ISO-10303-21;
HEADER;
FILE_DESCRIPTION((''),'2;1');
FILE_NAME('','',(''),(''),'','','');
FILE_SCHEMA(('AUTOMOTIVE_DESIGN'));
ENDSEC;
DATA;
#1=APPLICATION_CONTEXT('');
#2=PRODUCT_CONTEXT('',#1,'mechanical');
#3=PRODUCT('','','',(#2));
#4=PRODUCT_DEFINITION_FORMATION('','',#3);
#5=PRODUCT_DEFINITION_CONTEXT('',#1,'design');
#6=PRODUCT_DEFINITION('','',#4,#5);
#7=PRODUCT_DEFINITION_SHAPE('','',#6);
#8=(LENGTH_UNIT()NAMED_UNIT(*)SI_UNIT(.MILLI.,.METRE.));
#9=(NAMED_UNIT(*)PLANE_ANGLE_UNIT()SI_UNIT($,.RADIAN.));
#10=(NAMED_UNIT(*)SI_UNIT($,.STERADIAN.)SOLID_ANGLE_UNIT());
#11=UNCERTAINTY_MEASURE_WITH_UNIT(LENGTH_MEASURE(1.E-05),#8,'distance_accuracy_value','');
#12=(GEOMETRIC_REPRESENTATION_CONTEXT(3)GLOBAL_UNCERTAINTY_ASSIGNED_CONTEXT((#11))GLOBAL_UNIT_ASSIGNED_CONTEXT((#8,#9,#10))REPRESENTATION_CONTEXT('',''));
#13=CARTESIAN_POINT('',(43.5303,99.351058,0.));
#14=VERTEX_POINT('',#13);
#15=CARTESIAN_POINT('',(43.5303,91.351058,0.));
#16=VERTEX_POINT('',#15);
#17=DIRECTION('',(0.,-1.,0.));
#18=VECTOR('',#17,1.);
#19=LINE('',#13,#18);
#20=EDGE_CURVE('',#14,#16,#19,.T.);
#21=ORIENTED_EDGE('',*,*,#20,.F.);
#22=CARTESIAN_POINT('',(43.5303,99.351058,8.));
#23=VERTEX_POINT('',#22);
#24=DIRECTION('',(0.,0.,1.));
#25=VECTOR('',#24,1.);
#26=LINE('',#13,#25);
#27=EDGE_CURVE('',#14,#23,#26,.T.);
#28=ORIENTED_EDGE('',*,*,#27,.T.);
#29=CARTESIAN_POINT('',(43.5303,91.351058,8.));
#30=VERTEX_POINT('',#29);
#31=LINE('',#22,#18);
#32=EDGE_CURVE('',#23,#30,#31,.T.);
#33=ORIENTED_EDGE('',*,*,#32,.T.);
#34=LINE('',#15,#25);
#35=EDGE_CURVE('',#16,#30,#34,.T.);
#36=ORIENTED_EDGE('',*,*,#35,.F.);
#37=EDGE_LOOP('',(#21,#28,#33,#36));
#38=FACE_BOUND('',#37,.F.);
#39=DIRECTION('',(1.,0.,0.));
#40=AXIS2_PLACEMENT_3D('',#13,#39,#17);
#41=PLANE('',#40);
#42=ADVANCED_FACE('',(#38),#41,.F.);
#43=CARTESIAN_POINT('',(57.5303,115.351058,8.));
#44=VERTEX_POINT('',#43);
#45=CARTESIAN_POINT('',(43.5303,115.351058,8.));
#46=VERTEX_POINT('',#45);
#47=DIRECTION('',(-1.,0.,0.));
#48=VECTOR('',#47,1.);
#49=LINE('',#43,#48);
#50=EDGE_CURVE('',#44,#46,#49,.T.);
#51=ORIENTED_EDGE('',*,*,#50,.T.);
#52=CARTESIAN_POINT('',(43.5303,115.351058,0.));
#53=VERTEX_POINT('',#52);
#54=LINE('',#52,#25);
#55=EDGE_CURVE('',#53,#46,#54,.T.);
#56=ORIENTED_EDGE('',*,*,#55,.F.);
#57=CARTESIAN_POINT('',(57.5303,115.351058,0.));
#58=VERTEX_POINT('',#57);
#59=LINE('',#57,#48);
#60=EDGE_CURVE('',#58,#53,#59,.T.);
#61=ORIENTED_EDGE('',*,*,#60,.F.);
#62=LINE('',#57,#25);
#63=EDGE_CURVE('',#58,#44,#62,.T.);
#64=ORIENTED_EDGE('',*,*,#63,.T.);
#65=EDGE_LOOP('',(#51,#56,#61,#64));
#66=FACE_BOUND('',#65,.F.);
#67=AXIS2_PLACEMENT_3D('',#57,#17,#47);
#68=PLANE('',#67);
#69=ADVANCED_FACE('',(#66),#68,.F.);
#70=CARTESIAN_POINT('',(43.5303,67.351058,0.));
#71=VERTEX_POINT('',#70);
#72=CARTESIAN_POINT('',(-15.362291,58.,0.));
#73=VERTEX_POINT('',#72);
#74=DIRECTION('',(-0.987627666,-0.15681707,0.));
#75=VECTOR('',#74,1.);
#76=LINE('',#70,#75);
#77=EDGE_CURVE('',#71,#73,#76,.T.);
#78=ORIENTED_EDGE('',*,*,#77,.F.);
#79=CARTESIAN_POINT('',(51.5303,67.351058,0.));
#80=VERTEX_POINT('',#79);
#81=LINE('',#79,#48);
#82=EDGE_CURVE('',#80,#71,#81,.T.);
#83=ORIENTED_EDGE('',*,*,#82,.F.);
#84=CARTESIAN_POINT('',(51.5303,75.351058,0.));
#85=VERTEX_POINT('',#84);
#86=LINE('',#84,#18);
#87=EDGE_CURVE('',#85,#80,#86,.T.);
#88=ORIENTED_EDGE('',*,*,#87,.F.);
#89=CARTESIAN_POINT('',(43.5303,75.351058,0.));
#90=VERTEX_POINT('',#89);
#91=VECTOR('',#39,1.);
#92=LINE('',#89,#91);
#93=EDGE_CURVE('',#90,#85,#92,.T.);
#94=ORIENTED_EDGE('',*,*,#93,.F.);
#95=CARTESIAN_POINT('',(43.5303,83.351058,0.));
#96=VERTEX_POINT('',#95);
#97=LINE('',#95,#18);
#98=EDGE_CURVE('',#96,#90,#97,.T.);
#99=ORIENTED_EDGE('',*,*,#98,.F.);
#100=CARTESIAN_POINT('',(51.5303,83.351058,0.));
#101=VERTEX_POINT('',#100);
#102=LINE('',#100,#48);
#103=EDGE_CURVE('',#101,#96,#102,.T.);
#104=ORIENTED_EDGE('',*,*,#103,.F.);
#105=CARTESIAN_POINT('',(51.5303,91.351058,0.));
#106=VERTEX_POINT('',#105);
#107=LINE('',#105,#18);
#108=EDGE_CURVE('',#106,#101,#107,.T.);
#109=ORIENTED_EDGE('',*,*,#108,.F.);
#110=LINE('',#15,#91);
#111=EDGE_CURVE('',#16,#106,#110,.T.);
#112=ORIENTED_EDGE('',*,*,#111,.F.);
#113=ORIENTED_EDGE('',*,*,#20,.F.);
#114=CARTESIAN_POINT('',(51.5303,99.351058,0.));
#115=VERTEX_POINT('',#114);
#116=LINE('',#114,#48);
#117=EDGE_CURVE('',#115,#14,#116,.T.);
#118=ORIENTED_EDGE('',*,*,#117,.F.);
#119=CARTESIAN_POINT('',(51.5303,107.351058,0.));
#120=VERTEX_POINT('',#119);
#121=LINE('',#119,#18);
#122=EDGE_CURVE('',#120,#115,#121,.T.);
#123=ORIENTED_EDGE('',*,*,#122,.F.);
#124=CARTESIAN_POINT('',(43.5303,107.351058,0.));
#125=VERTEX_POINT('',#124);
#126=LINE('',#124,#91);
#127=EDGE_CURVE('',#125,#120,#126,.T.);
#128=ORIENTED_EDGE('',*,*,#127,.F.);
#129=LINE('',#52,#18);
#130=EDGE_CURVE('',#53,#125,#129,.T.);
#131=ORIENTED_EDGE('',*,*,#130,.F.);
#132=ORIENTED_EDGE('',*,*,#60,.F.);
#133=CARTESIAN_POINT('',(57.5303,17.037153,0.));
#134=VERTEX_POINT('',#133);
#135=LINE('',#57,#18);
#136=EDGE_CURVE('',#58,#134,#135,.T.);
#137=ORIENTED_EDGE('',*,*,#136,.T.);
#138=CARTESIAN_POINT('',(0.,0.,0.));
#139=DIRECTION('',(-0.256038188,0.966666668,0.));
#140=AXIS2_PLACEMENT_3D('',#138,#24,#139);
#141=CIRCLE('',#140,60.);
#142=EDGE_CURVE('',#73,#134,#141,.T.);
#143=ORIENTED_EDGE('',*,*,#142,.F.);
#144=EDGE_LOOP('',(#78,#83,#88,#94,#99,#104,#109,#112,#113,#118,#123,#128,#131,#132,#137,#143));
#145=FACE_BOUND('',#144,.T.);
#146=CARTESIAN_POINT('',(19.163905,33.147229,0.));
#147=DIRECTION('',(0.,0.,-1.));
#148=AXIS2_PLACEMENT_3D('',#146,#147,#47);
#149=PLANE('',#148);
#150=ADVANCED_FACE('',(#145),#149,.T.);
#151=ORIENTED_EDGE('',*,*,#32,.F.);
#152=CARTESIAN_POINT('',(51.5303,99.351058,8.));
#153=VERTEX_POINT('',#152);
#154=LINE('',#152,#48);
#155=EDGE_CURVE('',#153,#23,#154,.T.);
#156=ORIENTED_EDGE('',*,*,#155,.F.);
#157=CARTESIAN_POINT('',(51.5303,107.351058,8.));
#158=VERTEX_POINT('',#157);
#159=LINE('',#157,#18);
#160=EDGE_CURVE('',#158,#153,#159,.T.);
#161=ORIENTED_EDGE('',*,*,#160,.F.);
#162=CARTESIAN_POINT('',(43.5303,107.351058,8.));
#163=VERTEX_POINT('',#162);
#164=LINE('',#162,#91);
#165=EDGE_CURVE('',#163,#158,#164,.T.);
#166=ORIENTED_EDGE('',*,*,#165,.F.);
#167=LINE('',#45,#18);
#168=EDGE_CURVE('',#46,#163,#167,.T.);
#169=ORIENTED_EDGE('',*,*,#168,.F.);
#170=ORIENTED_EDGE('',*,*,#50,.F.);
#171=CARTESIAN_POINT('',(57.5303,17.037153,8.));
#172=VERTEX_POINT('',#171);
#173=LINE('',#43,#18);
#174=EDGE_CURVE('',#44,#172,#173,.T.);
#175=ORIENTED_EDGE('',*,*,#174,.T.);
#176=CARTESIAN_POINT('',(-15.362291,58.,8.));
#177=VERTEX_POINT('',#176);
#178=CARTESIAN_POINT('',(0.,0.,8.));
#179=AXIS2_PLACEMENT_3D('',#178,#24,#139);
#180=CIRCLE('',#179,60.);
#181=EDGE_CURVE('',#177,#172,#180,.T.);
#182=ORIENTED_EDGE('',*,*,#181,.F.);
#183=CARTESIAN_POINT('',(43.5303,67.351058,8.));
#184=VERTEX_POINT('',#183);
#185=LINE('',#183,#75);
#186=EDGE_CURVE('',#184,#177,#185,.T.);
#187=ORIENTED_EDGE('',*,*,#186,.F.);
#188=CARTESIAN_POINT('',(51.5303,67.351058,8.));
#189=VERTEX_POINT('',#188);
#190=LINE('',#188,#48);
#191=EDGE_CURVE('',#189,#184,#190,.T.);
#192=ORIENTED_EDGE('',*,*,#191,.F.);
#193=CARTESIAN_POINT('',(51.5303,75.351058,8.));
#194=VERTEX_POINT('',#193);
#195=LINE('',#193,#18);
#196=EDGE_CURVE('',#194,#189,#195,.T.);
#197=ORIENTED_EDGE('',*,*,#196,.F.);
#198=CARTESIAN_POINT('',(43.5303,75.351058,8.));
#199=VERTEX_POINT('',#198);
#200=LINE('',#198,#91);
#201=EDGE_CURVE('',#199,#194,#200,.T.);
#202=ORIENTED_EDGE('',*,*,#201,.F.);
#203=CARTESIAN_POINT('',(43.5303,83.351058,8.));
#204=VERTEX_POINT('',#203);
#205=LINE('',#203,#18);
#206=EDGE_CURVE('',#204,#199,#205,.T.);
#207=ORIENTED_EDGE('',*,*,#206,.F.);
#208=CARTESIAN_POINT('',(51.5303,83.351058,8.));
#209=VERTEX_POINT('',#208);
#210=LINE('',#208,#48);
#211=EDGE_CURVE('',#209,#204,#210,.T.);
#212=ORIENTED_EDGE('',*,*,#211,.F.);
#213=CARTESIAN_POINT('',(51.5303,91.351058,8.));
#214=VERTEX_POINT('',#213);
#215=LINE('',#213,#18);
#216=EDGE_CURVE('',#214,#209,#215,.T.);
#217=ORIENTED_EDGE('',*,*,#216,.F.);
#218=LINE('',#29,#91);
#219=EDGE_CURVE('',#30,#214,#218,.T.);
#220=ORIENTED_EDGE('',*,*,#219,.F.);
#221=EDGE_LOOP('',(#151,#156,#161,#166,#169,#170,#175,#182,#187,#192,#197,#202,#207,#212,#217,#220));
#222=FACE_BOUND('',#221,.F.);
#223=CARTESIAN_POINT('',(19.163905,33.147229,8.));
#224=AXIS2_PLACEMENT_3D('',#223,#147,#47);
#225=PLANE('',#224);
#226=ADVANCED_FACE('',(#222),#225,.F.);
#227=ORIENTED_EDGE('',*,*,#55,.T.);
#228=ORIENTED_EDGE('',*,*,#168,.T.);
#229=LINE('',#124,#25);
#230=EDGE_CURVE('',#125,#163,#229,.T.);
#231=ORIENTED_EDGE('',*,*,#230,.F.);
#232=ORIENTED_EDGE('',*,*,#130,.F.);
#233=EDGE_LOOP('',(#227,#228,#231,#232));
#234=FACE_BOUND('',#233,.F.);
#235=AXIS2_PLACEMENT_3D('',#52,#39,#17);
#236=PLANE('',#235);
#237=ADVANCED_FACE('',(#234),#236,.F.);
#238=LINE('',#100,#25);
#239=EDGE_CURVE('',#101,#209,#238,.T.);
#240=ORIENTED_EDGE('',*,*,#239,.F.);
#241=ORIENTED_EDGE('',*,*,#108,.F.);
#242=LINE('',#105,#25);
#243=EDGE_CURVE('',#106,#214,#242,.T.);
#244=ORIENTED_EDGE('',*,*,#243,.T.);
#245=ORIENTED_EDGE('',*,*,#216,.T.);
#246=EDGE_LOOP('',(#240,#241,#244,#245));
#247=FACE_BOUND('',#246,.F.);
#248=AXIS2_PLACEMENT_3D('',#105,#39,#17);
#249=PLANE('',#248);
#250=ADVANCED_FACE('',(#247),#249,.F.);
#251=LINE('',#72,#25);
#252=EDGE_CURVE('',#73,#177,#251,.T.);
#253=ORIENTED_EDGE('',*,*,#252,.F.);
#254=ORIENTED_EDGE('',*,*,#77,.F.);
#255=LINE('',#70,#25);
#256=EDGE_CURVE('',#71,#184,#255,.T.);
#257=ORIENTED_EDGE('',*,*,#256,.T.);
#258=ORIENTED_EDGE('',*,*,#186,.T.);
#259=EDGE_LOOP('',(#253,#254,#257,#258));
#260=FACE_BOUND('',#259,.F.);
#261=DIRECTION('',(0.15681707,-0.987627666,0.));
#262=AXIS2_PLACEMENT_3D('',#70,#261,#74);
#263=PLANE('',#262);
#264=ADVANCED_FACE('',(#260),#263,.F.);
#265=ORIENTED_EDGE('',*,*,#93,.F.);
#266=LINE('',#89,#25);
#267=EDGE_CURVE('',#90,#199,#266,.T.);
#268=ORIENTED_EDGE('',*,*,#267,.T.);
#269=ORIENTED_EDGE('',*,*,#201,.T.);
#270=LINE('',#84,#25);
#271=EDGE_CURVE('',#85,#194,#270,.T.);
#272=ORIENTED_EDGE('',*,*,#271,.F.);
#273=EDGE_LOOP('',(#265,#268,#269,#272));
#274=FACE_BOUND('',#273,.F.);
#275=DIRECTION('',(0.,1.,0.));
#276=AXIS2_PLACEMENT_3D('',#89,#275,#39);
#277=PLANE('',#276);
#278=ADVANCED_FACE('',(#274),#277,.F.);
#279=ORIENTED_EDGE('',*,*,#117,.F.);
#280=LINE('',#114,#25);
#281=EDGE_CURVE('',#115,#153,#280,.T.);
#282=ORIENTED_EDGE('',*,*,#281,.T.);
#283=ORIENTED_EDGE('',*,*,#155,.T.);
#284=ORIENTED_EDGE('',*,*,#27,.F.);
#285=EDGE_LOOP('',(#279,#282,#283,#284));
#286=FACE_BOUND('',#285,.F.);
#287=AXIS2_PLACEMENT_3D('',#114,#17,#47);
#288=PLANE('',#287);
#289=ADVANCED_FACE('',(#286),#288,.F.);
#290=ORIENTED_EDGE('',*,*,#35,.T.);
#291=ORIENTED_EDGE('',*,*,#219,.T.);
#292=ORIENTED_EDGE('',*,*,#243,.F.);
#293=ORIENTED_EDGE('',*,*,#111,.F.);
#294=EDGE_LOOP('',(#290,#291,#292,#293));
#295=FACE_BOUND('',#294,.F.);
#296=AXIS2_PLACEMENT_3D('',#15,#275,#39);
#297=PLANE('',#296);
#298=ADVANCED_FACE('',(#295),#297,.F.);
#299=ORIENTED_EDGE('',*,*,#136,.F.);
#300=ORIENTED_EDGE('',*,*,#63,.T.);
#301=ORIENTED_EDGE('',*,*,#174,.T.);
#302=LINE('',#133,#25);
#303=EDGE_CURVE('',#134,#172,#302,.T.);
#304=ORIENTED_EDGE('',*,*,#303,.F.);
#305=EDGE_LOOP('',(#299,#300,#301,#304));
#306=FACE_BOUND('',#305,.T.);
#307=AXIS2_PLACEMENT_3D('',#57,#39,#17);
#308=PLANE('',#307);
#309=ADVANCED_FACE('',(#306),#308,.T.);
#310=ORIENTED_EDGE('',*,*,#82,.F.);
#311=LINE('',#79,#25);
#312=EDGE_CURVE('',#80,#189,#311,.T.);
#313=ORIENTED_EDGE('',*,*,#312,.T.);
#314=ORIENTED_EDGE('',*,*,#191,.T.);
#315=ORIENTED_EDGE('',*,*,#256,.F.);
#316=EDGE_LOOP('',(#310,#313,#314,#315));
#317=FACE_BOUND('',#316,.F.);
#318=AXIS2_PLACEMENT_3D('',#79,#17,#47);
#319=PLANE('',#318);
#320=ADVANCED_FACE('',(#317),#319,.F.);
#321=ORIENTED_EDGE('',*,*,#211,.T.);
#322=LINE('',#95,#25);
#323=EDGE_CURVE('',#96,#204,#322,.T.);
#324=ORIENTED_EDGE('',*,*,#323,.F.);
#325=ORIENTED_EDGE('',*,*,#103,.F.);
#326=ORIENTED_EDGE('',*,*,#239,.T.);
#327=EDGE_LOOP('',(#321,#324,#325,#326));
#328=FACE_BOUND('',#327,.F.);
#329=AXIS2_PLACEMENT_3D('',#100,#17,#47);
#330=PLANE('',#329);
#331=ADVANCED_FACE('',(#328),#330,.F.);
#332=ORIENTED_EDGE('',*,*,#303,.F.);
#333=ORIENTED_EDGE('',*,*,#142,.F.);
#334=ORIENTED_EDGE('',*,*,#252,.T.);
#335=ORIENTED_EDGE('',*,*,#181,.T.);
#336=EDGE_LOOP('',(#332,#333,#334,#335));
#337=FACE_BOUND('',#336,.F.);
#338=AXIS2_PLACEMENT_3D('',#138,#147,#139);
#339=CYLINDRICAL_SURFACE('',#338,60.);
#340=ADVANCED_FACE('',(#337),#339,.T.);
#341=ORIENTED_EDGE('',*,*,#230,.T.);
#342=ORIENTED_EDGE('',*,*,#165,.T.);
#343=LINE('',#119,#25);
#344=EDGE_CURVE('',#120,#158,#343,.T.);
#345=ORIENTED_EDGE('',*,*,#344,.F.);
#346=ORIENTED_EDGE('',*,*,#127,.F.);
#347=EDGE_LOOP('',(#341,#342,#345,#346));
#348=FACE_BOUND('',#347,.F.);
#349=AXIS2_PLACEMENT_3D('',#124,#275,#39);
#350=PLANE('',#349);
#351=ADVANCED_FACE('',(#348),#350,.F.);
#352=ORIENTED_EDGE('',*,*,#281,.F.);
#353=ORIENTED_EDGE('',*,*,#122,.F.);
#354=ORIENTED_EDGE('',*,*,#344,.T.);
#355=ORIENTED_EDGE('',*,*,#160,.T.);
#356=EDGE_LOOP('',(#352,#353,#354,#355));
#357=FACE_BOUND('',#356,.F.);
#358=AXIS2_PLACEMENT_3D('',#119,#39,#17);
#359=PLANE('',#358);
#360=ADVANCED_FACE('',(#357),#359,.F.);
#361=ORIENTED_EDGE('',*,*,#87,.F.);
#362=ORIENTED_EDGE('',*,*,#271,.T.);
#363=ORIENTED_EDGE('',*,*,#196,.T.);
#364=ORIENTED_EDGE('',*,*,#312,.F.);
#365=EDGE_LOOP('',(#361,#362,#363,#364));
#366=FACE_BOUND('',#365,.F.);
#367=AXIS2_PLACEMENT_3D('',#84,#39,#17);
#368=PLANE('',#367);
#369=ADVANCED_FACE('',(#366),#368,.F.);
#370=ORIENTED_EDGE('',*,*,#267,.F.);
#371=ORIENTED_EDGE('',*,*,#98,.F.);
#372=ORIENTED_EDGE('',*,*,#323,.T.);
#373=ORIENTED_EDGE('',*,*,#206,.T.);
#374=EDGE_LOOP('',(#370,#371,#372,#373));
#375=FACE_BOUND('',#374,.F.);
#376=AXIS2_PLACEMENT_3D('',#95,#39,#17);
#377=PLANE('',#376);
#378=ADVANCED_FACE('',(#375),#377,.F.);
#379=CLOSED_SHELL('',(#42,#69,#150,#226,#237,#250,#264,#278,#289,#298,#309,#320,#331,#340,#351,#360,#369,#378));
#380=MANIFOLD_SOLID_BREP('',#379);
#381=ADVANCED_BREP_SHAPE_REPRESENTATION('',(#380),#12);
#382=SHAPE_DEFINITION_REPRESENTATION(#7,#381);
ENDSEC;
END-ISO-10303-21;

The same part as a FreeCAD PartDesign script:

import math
import FreeCAD as App
import Part
import Sketcher

doc = App.newDocument("Part")
params = doc.addObject("Spreadsheet::Sheet", "Params")
for row, (alias, value) in enumerate([
    ("sketch1_radius", "60 mm"),
    ("sketch1_width", "14 mm"),
    ("sketch1_width2", "8 mm"),
    ("pad1_length", "8 mm"),
], start=1):
    params.set(f"A{row}", alias)
    params.set(f"B{row}", "=" + value)
    params.setAlias(f"B{row}", alias)

body = doc.addObject("PartDesign::Body", "Body")

sketch1 = doc.addObject("Sketcher::SketchObject", "Sketch")
body.addObject(sketch1)
sketch1.AttachmentSupport = (doc.XY_Plane, [""])
sketch1.MapMode = "FlatFace"
sketch1.addGeometry([
    Part.LineSegment(App.Vector(57.5303, 115.351058, 0), App.Vector(43.5303, 115.351058, 0)),
    Part.LineSegment(App.Vector(43.5303, 115.351058, 0), App.Vector(43.5303, 107.351058, 0)),
    Part.LineSegment(App.Vector(43.5303, 107.351058, 0), App.Vector(51.5303, 107.351058, 0)),
    Part.LineSegment(App.Vector(51.5303, 107.351058, 0), App.Vector(51.5303, 99.351058, 0)),
    Part.LineSegment(App.Vector(51.5303, 99.351058, 0), App.Vector(43.5303, 99.351058, 0)),
    Part.LineSegment(App.Vector(43.5303, 99.351058, 0), App.Vector(43.5303, 91.351058, 0)),
    Part.LineSegment(App.Vector(43.5303, 91.351058, 0), App.Vector(51.5303, 91.351058, 0)),
    Part.LineSegment(App.Vector(51.5303, 91.351058, 0), App.Vector(51.5303, 83.351058, 0)),
    Part.LineSegment(App.Vector(51.5303, 83.351058, 0), App.Vector(43.5303, 83.351058, 0)),
    Part.LineSegment(App.Vector(43.5303, 83.351058, 0), App.Vector(43.5303, 75.351058, 0)),
    Part.LineSegment(App.Vector(43.5303, 75.351058, 0), App.Vector(51.5303, 75.351058, 0)),
    Part.LineSegment(App.Vector(51.5303, 75.351058, 0), App.Vector(51.5303, 67.351058, 0)),
    Part.LineSegment(App.Vector(51.5303, 67.351058, 0), App.Vector(43.5303, 67.351058, 0)),
    Part.LineSegment(App.Vector(43.5303, 67.351058, 0), App.Vector(-15.362291, 58, 0)),
    Part.ArcOfCircle(Part.Circle(App.Vector(0, 0, 0), App.Vector(0, 0, 1), 60), math.radians(104.835111), math.radians(376.496248)),
    Part.LineSegment(App.Vector(57.5303, 17.037153, 0), App.Vector(57.5303, 115.351058, 0)),
], False)
sketch1.addConstraint([
    Sketcher.Constraint("Coincident", 0, 2, 1, 1),
    Sketcher.Constraint("Coincident", 1, 2, 2, 1),
    Sketcher.Constraint("Coincident", 2, 2, 3, 1),
    Sketcher.Constraint("Coincident", 3, 2, 4, 1),
    Sketcher.Constraint("Coincident", 4, 2, 5, 1),
    Sketcher.Constraint("Coincident", 5, 2, 6, 1),
    Sketcher.Constraint("Coincident", 6, 2, 7, 1),
    Sketcher.Constraint("Coincident", 7, 2, 8, 1),
    Sketcher.Constraint("Coincident", 8, 2, 9, 1),
    Sketcher.Constraint("Coincident", 9, 2, 10, 1),
    Sketcher.Constraint("Coincident", 10, 2, 11, 1),
    Sketcher.Constraint("Coincident", 11, 2, 12, 1),
    Sketcher.Constraint("Coincident", 12, 2, 13, 1),
    Sketcher.Constraint("Coincident", 13, 2, 14, 1),
    Sketcher.Constraint("Coincident", 14, 2, 15, 1),
    Sketcher.Constraint("Coincident", 15, 2, 0, 1),
    Sketcher.Constraint("Horizontal", 0),
    Sketcher.Constraint("Vertical", 1),
    Sketcher.Constraint("Horizontal", 2),
    Sketcher.Constraint("Vertical", 3),
    Sketcher.Constraint("Horizontal", 4),
    Sketcher.Constraint("Vertical", 5),
    Sketcher.Constraint("Horizontal", 6),
    Sketcher.Constraint("Vertical", 7),
    Sketcher.Constraint("Horizontal", 8),
    Sketcher.Constraint("Vertical", 9),
    Sketcher.Constraint("Horizontal", 10),
    Sketcher.Constraint("Vertical", 11),
    Sketcher.Constraint("Horizontal", 12),
    Sketcher.Constraint("Vertical", 15),
    Sketcher.Constraint("Coincident", 14, 3, -1, 1),
    Sketcher.Constraint("Vertical", 1, 2, 4, 2),
    Sketcher.Constraint("Vertical", 3, 2, 6, 2),
    Sketcher.Constraint("Vertical", 5, 2, 8, 2),
    Sketcher.Constraint("Vertical", 7, 2, 10, 2),
    Sketcher.Constraint("Vertical", 9, 2, 12, 2),
    Sketcher.Constraint("Equal", 12, 1),
    Sketcher.Constraint("Equal", 1, 3),
    Sketcher.Constraint("Equal", 3, 5),
    Sketcher.Constraint("Equal", 5, 7),
    Sketcher.Constraint("Equal", 7, 9),
    Sketcher.Constraint("Equal", 9, 11),
    Sketcher.Constraint("Radius", 14, 60.0),
    Sketcher.Constraint("DistanceX", 0, 2, 0, 1, 14.0),
    Sketcher.Constraint("DistanceX", 2, 1, 2, 2, 8.0),
    Sketcher.Constraint("DistanceY", -1, 1, 13, 2, 58.0),
    Sketcher.Constraint("DistanceX", -1, 1, 0, 2, 43.5303),
    Sketcher.Constraint("DistanceY", 15, 1, 15, 2, 98.313905),
])
sketch1.setExpression("Constraints[42]", "Params.sketch1_radius")
sketch1.setExpression("Constraints[43]", "Params.sketch1_width")
sketch1.setExpression("Constraints[44]", "Params.sketch1_width2")
pad1 = doc.addObject("PartDesign::Pad", "Pad")
body.addObject(pad1)
pad1.Profile = sketch1
pad1.setExpression("Length", "Params.pad1_length")

doc.recompute()
